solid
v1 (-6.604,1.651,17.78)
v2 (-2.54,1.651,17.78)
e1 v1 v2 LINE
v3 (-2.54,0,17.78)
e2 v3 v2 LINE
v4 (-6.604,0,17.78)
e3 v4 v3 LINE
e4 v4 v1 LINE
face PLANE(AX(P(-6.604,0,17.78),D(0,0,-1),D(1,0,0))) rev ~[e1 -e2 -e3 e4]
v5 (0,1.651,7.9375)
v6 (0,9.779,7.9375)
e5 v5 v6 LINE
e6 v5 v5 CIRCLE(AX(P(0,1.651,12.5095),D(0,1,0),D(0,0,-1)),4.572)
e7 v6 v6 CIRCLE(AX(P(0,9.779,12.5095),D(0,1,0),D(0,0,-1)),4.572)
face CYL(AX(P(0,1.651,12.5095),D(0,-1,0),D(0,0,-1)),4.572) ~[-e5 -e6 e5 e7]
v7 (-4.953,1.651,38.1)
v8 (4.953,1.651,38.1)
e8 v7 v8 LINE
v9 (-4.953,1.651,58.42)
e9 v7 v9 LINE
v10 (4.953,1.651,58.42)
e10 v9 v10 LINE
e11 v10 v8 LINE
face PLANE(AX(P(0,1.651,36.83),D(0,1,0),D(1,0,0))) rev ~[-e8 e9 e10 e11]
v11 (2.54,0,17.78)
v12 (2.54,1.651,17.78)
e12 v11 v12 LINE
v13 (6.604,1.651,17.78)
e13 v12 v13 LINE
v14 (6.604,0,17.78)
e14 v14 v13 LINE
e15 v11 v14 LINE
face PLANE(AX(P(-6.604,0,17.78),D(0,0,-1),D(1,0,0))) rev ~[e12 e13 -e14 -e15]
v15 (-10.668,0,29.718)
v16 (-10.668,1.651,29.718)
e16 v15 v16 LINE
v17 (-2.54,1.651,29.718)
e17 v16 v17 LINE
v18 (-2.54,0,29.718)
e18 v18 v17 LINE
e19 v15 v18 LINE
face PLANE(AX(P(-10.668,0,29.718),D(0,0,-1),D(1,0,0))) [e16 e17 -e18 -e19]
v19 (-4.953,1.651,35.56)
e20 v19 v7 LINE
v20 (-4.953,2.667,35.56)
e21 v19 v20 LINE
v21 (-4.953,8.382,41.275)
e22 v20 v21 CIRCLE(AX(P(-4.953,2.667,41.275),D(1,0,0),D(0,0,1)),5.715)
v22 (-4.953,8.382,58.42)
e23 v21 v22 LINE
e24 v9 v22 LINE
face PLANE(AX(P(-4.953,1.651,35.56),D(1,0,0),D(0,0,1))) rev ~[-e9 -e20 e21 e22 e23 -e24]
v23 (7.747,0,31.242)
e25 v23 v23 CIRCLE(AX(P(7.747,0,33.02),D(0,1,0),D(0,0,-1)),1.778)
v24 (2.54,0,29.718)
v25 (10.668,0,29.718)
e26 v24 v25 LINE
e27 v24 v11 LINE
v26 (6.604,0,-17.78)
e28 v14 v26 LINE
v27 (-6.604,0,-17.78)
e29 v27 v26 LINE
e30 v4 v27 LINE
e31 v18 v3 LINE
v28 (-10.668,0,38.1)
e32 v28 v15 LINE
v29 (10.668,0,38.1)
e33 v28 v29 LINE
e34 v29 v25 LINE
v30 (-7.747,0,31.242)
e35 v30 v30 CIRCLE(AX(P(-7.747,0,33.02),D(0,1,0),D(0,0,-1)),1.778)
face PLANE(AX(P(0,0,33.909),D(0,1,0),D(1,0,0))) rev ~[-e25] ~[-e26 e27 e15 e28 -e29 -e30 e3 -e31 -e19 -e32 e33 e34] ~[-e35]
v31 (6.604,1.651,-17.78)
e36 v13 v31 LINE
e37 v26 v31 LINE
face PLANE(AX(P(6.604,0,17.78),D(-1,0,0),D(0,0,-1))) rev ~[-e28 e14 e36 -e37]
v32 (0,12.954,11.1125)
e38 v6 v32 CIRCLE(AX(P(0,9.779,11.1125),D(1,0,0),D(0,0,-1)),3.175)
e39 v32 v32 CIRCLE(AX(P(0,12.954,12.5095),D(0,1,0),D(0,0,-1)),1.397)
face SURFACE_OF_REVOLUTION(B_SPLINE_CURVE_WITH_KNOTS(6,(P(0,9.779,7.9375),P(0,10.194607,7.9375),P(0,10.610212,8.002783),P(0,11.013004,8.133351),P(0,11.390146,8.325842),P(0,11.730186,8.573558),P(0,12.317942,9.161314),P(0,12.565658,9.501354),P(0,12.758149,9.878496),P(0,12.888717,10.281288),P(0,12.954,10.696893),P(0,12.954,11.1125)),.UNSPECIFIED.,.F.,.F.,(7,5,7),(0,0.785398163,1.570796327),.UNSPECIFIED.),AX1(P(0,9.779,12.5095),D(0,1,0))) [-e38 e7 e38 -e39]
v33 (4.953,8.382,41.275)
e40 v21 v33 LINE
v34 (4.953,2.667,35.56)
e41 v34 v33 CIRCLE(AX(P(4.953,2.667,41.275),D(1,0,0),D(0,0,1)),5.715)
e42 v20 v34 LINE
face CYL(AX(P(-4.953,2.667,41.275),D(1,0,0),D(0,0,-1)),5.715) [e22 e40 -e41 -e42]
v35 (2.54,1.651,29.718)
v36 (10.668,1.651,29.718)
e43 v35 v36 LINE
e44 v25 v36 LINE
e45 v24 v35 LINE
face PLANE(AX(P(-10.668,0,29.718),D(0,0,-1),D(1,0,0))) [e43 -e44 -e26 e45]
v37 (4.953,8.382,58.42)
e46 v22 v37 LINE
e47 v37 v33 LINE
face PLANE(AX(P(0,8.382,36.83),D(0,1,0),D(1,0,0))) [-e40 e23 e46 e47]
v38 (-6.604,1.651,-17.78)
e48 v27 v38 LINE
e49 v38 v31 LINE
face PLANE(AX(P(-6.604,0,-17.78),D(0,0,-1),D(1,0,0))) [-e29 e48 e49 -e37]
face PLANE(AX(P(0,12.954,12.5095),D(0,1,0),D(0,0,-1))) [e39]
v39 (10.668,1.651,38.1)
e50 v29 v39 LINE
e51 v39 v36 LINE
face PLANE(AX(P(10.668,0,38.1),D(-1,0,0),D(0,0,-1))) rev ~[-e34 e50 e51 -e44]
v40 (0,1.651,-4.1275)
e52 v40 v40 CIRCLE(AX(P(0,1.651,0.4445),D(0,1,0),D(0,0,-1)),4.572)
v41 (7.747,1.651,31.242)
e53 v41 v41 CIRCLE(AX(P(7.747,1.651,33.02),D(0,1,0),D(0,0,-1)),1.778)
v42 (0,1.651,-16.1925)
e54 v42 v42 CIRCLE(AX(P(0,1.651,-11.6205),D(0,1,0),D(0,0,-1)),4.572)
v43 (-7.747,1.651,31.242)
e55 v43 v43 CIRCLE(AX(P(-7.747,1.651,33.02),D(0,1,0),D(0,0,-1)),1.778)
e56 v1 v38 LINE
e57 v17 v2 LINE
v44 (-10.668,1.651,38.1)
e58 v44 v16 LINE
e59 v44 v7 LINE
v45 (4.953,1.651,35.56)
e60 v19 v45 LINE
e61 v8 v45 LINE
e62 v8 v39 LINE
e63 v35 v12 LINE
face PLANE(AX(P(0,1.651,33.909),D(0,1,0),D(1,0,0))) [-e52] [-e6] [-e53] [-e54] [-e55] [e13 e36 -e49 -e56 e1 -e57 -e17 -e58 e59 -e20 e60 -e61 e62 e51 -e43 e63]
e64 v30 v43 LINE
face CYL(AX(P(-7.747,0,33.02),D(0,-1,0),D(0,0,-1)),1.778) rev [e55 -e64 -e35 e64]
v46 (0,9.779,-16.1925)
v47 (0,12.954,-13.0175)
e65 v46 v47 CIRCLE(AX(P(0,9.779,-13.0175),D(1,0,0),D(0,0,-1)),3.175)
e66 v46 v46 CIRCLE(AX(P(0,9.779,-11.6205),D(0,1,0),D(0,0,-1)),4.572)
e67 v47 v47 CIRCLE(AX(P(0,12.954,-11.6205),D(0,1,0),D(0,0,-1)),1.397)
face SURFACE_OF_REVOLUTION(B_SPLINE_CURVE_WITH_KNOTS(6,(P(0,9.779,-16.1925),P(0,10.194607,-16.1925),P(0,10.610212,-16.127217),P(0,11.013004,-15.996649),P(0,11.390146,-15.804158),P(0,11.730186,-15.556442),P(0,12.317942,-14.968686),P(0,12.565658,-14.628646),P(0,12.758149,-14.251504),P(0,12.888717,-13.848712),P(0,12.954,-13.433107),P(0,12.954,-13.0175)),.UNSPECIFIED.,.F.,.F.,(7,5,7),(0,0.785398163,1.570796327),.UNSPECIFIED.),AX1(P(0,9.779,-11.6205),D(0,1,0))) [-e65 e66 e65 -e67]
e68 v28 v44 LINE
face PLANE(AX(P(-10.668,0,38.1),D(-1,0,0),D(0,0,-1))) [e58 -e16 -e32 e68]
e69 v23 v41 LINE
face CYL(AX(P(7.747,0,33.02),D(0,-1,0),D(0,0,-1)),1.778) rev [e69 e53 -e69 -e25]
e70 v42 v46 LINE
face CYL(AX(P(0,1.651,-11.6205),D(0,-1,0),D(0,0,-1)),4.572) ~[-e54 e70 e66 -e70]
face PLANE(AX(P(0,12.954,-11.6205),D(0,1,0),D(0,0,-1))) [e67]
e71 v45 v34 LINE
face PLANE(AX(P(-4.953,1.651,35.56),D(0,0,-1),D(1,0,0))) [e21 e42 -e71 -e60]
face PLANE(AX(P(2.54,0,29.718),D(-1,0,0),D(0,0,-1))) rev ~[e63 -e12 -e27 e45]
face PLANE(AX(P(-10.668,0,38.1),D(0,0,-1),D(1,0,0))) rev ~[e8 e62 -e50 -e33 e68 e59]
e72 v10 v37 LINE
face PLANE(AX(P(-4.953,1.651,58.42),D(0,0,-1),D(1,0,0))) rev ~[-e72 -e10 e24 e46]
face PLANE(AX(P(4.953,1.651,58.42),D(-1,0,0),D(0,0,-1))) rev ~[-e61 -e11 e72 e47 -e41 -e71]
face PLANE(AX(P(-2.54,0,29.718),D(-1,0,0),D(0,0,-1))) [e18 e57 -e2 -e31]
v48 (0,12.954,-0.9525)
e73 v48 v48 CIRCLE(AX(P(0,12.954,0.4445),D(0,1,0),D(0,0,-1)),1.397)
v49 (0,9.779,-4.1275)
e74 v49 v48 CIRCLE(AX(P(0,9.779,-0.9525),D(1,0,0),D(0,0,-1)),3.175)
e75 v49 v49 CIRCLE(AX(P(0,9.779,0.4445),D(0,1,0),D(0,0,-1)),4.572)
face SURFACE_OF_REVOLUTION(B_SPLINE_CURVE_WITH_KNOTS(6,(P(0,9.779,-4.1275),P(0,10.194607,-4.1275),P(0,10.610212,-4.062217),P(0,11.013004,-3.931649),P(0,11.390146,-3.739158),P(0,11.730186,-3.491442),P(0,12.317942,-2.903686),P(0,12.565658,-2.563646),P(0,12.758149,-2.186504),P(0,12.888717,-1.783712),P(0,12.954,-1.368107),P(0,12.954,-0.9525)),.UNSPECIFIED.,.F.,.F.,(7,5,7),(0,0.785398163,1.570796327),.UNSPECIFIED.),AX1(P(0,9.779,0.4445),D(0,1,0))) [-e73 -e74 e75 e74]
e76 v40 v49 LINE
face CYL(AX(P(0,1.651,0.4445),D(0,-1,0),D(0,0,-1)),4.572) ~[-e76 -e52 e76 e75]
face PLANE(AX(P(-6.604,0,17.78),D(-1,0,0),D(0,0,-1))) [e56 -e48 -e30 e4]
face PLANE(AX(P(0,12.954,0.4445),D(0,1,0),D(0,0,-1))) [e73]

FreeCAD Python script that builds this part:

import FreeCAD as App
import Part
import Sketcher
Q = App.Units.Quantity


def edges_at(feature, points):
    """Names of the edges that pass closest to the given points."""
    edges = feature.Shape.Edges
    near = lambda p: min(range(len(edges)), key=lambda i: edges[i].distToShape(Part.Vertex(*p))[0])
    return sorted({f"Edge{near(p) + 1}" for p in points})


def add_polygon(sketch, points):
    """Adds a closed chain of lines whose ends are joined by coincident constraints."""
    first, n = sketch.GeometryCount, len(points)
    for a, b in zip(points, points[1:] + points[:1]):
        sketch.addGeometry(Part.LineSegment(App.Vector(*a, 0), App.Vector(*b, 0)), False)
    for i in range(n):
        sketch.addConstraint(Sketcher.Constraint("Coincident", first + i, 2, first + (i + 1) % n, 1))

doc = App.newDocument("Part")
params = doc.addObject("Spreadsheet::Sheet", "Params")
for row, (alias, value) in enumerate([
    ("sketch1_diameter", "0.14 in"),
    ("sketch1_height", "1.4 in"),
    ("sketch1_width", "0.16 in"),
    ("sketch1_width2", "0.32 in"),
    ("sketch1_width3", "0.84 in"),
    ("pad1_length", "0.065 in"),
    ("sketch2_diameter", "0.36 in"),
    ("pad2_length", "0.445 in"),
    ("fillet_radius", "0.125 in"),
    ("sketch3_height", "0.9 in"),
    ("sketch3_width", "0.39 in"),
    ("pad3_length", "0.265 in"),
    ("fillet2_radius", "0.225 in"),
], start=1):
    params.set(f"A{row}", alias)
    params.set(f"B{row}", "=" + value)
    params.setAlias(f"B{row}", alias)

body = doc.addObject("PartDesign::Body", "Body")

# Sketch on XZ plane
sketch1 = doc.addObject("Sketcher::SketchObject", "Sketch")
body.addObject(sketch1)
sketch1.AttachmentSupport = (doc.XZ_Plane, [""])
sketch1.MapMode = "FlatFace"
add_polygon(sketch1, [(-6.604, -17.78), (-6.604, 17.78), (-2.54, 17.78), (-2.54, 29.718), (-10.668, 29.718), (-10.668, 38.1), (10.668, 38.1), (10.668, 29.718), (2.54, 29.718), (2.54, 17.78), (6.604, 17.78), (6.604, -17.78)])  # lines 0-11
sketch1.addGeometry(Part.Circle(App.Vector(7.747, 33.02, 0), App.Vector(0, 0, 1), 1.778), False)  # 12
sketch1.addGeometry(Part.Circle(App.Vector(-7.747, 33.02, 0), App.Vector(0, 0, 1), 1.778), False)  # 13
sketch1.addConstraint(Sketcher.Constraint("Vertical", 0))
sketch1.addConstraint(Sketcher.Constraint("Horizontal", 1))
sketch1.addConstraint(Sketcher.Constraint("Vertical", 2))
sketch1.addConstraint(Sketcher.Constraint("Horizontal", 3))
sketch1.addConstraint(Sketcher.Constraint("Vertical", 4))
sketch1.addConstraint(Sketcher.Constraint("Horizontal", 5))
sketch1.addConstraint(Sketcher.Constraint("Vertical", 6))
sketch1.addConstraint(Sketcher.Constraint("Horizontal", 7))
sketch1.addConstraint(Sketcher.Constraint("Vertical", 8))
sketch1.addConstraint(Sketcher.Constraint("Horizontal", 9))
sketch1.addConstraint(Sketcher.Constraint("Vertical", 10))
sketch1.addConstraint(Sketcher.Constraint("Horizontal", 11))
sketch1.addConstraint(Sketcher.Constraint("Equal", 12, 13))
sketch1.addConstraint(Sketcher.Constraint("Symmetric", 0, 2, 10, 2, -1, 1))
sketch1.addConstraint(Sketcher.Constraint("Symmetric", 12, 3, 13, 3, -2))
sketch1.addConstraint(Sketcher.Constraint("Symmetric", 3, 2, 6, 2, -2))
sketch1.addConstraint(Sketcher.Constraint("Symmetric", 1, 2, 8, 2, -2))
sketch1.addConstraint(Sketcher.Constraint("Diameter", 12, Q("0.14 in")))
sketch1.addConstraint(Sketcher.Constraint("DistanceY", 0, 1, 0, 2, Q("1.4 in")))
sketch1.addConstraint(Sketcher.Constraint("DistanceX", 1, 1, 1, 2, Q("0.16 in")))
sketch1.addConstraint(Sketcher.Constraint("DistanceX", 3, 2, 3, 1, Q("0.32 in")))
sketch1.addConstraint(Sketcher.Constraint("DistanceX", 5, 1, 5, 2, Q("0.84 in")))
sketch1.addConstraint(Sketcher.Constraint("DistanceY", 2, 1, 2, 2, Q("0.47 in")))
sketch1.addConstraint(Sketcher.Constraint("DistanceY", 4, 1, 4, 2, Q("0.33 in")))
sketch1.addConstraint(Sketcher.Constraint("DistanceY", -1, 1, 12, 3, Q("1.3 in")))
sketch1.addConstraint(Sketcher.Constraint("DistanceX", 13, 3, 12, 3, Q("0.61 in")))
sketch1.setExpression("Constraints[29]", "Params.sketch1_diameter")
sketch1.setExpression("Constraints[30]", "Params.sketch1_height")
sketch1.setExpression("Constraints[31]", "Params.sketch1_width")
sketch1.setExpression("Constraints[32]", "Params.sketch1_width2")
sketch1.setExpression("Constraints[33]", "Params.sketch1_width3")
pad1 = doc.addObject("PartDesign::Pad", "Pad")
body.addObject(pad1)
pad1.Profile = sketch1
pad1.setExpression("Length", "Params.pad1_length")
pad1.Reversed = True

# Sketch on XZ plane
sketch2 = doc.addObject("Sketcher::SketchObject", "Sketch001")
body.addObject(sketch2)
sketch2.AttachmentSupport = (doc.XZ_Plane, [""])
sketch2.MapMode = "FlatFace"
sketch2.AttachmentOffset = App.Placement(App.Vector(0, 0, -0.065 * 25.4), App.Rotation())
sketch2.addGeometry(Part.Circle(App.Vector(0, -11.6205, 0), App.Vector(0, 0, 1), 4.572), False)
sketch2.addGeometry(Part.Circle(App.Vector(0, 0.4445, 0), App.Vector(0, 0, 1), 4.572), False)
sketch2.addGeometry(Part.Circle(App.Vector(0, 12.5095, 0), App.Vector(0, 0, 1), 4.572), False)
sketch2.addConstraint(Sketcher.Constraint("Equal", 0, 1))
sketch2.addConstraint(Sketcher.Constraint("Equal", 1, 2))
sketch2.addConstraint(Sketcher.Constraint("PointOnObject", 0, 3, -2))
sketch2.addConstraint(Sketcher.Constraint("PointOnObject", 1, 3, -2))
sketch2.addConstraint(Sketcher.Constraint("PointOnObject", 2, 3, -2))
sketch2.addConstraint(Sketcher.Constraint("Diameter", 0, Q("0.36 in")))
sketch2.addConstraint(Sketcher.Constraint("DistanceY", 0, 3, 2, 3, Q("0.95 in")))
sketch2.addConstraint(Sketcher.Constraint("DistanceY", 0, 3, 1, 3, Q("0.475 in")))
sketch2.addConstraint(Sketcher.Constraint("DistanceY", 0, 3, -1, 1, Q("0.4575 in")))
sketch2.setExpression("Constraints[5]", "Params.sketch2_diameter")
pad2 = doc.addObject("PartDesign::Pad", "Pad001")
body.addObject(pad2)
pad2.Profile = sketch2
pad2.setExpression("Length", "Params.pad2_length")
pad2.Reversed = True
doc.recompute()

fillet = doc.addObject("PartDesign::Fillet", "Fillet")
body.addObject(fillet)
fillet.Base = (pad2, edges_at(pad2, [(0, 12.954, -7.048), (0, 12.954, 5.016), (0, 12.954, 17.081)]))
fillet.setExpression("Radius", "Params.fillet_radius")

# Sketch on XZ plane
sketch3 = doc.addObject("Sketcher::SketchObject", "Sketch002")
body.addObject(sketch3)
sketch3.AttachmentSupport = (doc.XZ_Plane, [""])
sketch3.MapMode = "FlatFace"
sketch3.AttachmentOffset = App.Placement(App.Vector(0, 0, -0.065 * 25.4), App.Rotation())
add_polygon(sketch3, [(-4.953, 35.56), (-4.953, 58.42), (4.953, 58.42), (4.953, 35.56)])  # lines 0-3
sketch3.addConstraint(Sketcher.Constraint("Vertical", 0))
sketch3.addConstraint(Sketcher.Constraint("Horizontal", 1))
sketch3.addConstraint(Sketcher.Constraint("Vertical", 2))
sketch3.addConstraint(Sketcher.Constraint("Horizontal", 3))
sketch3.addConstraint(Sketcher.Constraint("DistanceY", 0, 1, 0, 2, Q("0.9 in")))
sketch3.addConstraint(Sketcher.Constraint("DistanceX", 1, 1, 1, 2, Q("0.39 in")))
sketch3.addConstraint(Sketcher.Constraint("DistanceY", -1, 1, 0, 2, Q("2.3 in")))
sketch3.addConstraint(Sketcher.Constraint("DistanceX", 0, 2, -1, 1, Q("0.195 in")))
sketch3.setExpression("Constraints[8]", "Params.sketch3_height")
sketch3.setExpression("Constraints[9]", "Params.sketch3_width")
pad3 = doc.addObject("PartDesign::Pad", "Pad002")
body.addObject(pad3)
pad3.Profile = sketch3
pad3.setExpression("Length", "Params.pad3_length")
pad3.Reversed = True
doc.recompute()

fillet2 = doc.addObject("PartDesign::Fillet", "Fillet001")
body.addObject(fillet2)
fillet2.Base = (pad3, edges_at(pad3, [(0, 8.382, 35.56)]))
fillet2.setExpression("Radius", "Params.fillet2_radius")

doc.recompute()
